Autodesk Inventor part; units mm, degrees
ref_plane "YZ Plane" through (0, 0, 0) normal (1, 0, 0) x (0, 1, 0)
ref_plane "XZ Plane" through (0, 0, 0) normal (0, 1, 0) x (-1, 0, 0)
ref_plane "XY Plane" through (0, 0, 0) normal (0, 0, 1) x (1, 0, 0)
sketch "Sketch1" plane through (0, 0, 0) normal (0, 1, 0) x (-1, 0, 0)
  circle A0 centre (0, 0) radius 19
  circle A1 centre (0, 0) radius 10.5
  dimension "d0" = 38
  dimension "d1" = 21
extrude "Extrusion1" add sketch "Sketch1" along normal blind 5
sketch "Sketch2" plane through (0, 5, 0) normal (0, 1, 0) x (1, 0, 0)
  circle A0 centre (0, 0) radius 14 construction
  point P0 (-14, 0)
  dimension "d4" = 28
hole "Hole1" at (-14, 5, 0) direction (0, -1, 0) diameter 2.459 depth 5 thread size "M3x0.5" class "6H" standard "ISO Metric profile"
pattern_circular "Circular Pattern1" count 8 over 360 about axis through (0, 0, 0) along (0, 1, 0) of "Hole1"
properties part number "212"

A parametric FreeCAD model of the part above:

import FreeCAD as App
import Part
import Sketcher
from FreeCAD import Vector
Q = App.Units.Quantity

doc = App.newDocument("Part")
params = doc.addObject("Spreadsheet::Sheet", "Params")
for row, (alias, value) in enumerate([
    ("sketch1_diameter", "38 mm"),
    ("sketch1_diameter2", "21 mm"),
    ("pad1_length", "5 mm"),
    ("hole_diameter", "2.459 mm"),
    ("hole_depth", "5 mm"),
], start=1):
    params.set(f"A{row}", alias)
    params.set(f"B{row}", "=" + value)
    params.setAlias(f"B{row}", alias)

body = doc.addObject("PartDesign::Body", "Body")

# Sketch on XZ plane
sketch1 = doc.addObject("Sketcher::SketchObject", "Sketch")
body.addObject(sketch1)
sketch1.AttachmentSupport = (doc.XZ_Plane, [""])
sketch1.MapMode = "FlatFace"
sketch1.addGeometry([
    Part.Circle(Vector(0, 0, 0), Vector(0, 0, 1), 19),
    Part.Circle(Vector(0, 0, 0), Vector(0, 0, 1), 10),
], False)
sketch1.addConstraint([
    Sketcher.Constraint("Coincident", 0, 3, -1, 1),
    Sketcher.Constraint("Coincident", 1, 3, -1, 1),
    Sketcher.Constraint("Diameter", 0, Q("38 mm")),
    Sketcher.Constraint("Diameter", 1, Q("21 mm")),
])
sketch1.setExpression("Constraints[2]", "Params.sketch1_diameter")
sketch1.setExpression("Constraints[3]", "Params.sketch1_diameter2")
pad1 = doc.addObject("PartDesign::Pad", "Pad")
body.addObject(pad1)
pad1.Profile = sketch1
pad1.setExpression("Length", "Params.pad1_length")
pad1.Reversed = True

# Sketch on XZ plane
sketch2 = doc.addObject("Sketcher::SketchObject", "Sketch001")
body.addObject(sketch2)
sketch2.AttachmentSupport = (doc.XZ_Plane, [""])
sketch2.MapMode = "FlatFace"
sketch2.AttachmentOffset = App.Placement(Vector(0, 0, -5), App.Rotation())
sketch2.addGeometry(Part.Circle(Vector(-14, 0, 0), Vector(0, 0, 1), 1.2), False)
sketch2.addConstraint([
    Sketcher.Constraint("PointOnObject", 0, 3, -1),
    Sketcher.Constraint("Diameter", 0, Q("2.459 mm")),
    Sketcher.Constraint("DistanceX", 0, 3, -1, 1, Q("14 mm")),
])
doc.recompute()
hole = doc.addObject("PartDesign::Hole", "Hole")
body.addObject(hole)
hole.Profile = sketch2
hole.ThreadType = "None"
hole.setExpression("Diameter", "Params.hole_diameter")
hole.DepthType = "Dimension"
hole.setExpression("Depth", "Params.hole_depth")
hole.DrillPoint = "Flat"
hole.Reversed = True
doc.recompute()

polarpattern = doc.addObject("PartDesign::PolarPattern", "PolarPattern")
body.addObject(polarpattern)
polarpattern.Originals = [hole]
polarpattern.Axis = (doc.Y_Axis, [""])
polarpattern.Angle = 360
polarpattern.Occurrences = 8
body.Tip = polarpattern

doc.recompute()
